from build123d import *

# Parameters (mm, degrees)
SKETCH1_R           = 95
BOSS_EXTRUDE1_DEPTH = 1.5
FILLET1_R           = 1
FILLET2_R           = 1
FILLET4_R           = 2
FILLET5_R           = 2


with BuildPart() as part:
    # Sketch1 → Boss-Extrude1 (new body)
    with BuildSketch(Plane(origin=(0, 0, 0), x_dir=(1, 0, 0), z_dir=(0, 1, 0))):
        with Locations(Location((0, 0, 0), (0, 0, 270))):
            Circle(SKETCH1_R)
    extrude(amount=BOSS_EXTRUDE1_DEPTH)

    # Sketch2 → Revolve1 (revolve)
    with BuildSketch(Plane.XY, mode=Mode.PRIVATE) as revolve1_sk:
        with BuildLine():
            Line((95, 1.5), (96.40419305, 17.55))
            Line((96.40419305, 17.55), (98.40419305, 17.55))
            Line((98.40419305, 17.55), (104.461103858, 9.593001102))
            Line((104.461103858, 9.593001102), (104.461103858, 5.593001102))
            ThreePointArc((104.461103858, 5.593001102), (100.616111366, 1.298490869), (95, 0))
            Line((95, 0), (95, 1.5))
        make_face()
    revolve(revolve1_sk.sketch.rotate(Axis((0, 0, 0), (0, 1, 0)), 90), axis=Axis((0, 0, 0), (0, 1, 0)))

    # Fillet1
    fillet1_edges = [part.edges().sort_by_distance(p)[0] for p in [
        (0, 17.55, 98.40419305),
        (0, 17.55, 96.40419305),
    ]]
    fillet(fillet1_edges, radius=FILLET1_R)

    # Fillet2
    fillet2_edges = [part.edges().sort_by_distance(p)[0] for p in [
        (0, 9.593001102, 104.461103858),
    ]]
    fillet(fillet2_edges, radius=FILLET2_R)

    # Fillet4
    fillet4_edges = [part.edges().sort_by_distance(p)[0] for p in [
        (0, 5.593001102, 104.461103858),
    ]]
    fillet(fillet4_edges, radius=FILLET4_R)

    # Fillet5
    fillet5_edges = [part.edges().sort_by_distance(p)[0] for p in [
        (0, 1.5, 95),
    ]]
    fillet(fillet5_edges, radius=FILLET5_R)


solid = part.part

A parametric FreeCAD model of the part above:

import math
import FreeCAD as App
import Part
import Sketcher

V = App.Vector
Q = App.Units.Quantity


def edges_at(feature, points):
    """Names of the edges that pass closest to the given points."""
    edges = feature.Shape.Edges
    near = lambda p: min(range(len(edges)), key=lambda i: edges[i].distToShape(Part.Vertex(*p))[0])
    return sorted({f"Edge{near(p) + 1}" for p in points})

doc = App.newDocument("Part")
body = doc.addObject("PartDesign::Body", "Body")

sketch1 = doc.addObject("Sketcher::SketchObject", "Sketch")
body.addObject(sketch1)
sketch1.AttachmentSupport = (doc.XZ_Plane, [""])
sketch1.MapMode = "FlatFace"
sketch1.addGeometry(Part.Circle(V(0, 0, 0), V(0, 0, 1), 95), False)
sketch1.addConstraint([
    Sketcher.Constraint("Coincident", 0, 3, -1, 1),
    Sketcher.Constraint("Diameter", 0, 190.0),
])
pad1 = doc.addObject("PartDesign::Pad", "Pad")
body.addObject(pad1)
pad1.Profile = sketch1
pad1.Length = 1.5
pad1.Reversed = True

sketch2 = doc.addObject("Sketcher::SketchObject", "Sketch001")
body.addObject(sketch2)
sketch2.AttachmentSupport = (doc.XY_Plane, [""])
sketch2.MapMode = "FlatFace"
sketch2.addGeometry([
    Part.LineSegment(V(96.4, 17.6, 0), V(95, 1.5, 0)),
    Part.LineSegment(V(95, 1.5, 0), V(95, 0, 0)),
    Part.ArcOfCircle(Part.Circle(V(95.8, 9.5, 0), V(0, 0, 1), 9.5), math.radians(-95), math.radians(-24)),
    Part.LineSegment(V(104.5, 5.6, 0), V(104.5, 9.6, 0)),
    Part.LineSegment(V(104.5, 9.6, 0), V(98.4, 17.6, 0)),
    Part.LineSegment(V(98.4, 17.6, 0), V(96.4, 17.6, 0)),
], False)
sketch2.addConstraint([
    Sketcher.Constraint("Coincident", 0, 2, 1, 1),
    Sketcher.Constraint("Coincident", 1, 2, 2, 1),
    Sketcher.Constraint("Coincident", 2, 2, 3, 1),
    Sketcher.Constraint("Coincident", 3, 2, 4, 1),
    Sketcher.Constraint("Coincident", 4, 2, 5, 1),
    Sketcher.Constraint("Coincident", 5, 2, 0, 1),
    Sketcher.Constraint("Vertical", 1),
    Sketcher.Constraint("Vertical", 3),
    Sketcher.Constraint("Horizontal", 5),
    Sketcher.Constraint("PointOnObject", 1, 2, -1),
    Sketcher.Constraint("DistanceX", 5, 2, 5, 1, 2.0),
    Sketcher.Constraint("DistanceY", 3, 1, 3, 2, 4.0),
    Sketcher.Constraint("Angle", 0, Q("-95 deg")),
    Sketcher.Constraint("Distance", 4, 10.0),
    Sketcher.Constraint("DistanceY", 1, 2, 1, 1, 1.5),
    Sketcher.Constraint("DistanceX", -1, 1, 0, 2, 95.0),
    Sketcher.Constraint("DistanceY", -1, 1, 4, 2, 17.55),
    Sketcher.Constraint("DistanceY", -1, 1, 2, 2, 5.593001),
    Sketcher.Constraint("Radius", 2, 9.546904),
])
revolution = doc.addObject("PartDesign::Revolution", "Revolution")
body.addObject(revolution)
revolution.Profile = sketch2
revolution.ReferenceAxis = (sketch2, ["V_Axis"])
revolution.Angle = 360
doc.recompute()

fillet = doc.addObject("PartDesign::Fillet", "Fillet")
body.addObject(fillet)
fillet.Base = (revolution, edges_at(revolution, [(0, 17.55, 98.404), (0, 17.55, 96.404)]))
fillet.Radius = 1
doc.recompute()

fillet2 = doc.addObject("PartDesign::Fillet", "Fillet001")
body.addObject(fillet2)
fillet2.Base = (fillet, edges_at(fillet, [(0, 9.593, 104.461)]))
fillet2.Radius = 1
doc.recompute()

fillet3 = doc.addObject("PartDesign::Fillet", "Fillet002")
body.addObject(fillet3)
fillet3.Base = (fillet2, edges_at(fillet2, [(0, 5.593, 104.461)]))
fillet3.Radius = 2
doc.recompute()

fillet4 = doc.addObject("PartDesign::Fillet", "Fillet003")
body.addObject(fillet4)
fillet4.Base = (fillet3, edges_at(fillet3, [(0, 1.5, 95)]))
fillet4.Radius = 2

doc.recompute()
